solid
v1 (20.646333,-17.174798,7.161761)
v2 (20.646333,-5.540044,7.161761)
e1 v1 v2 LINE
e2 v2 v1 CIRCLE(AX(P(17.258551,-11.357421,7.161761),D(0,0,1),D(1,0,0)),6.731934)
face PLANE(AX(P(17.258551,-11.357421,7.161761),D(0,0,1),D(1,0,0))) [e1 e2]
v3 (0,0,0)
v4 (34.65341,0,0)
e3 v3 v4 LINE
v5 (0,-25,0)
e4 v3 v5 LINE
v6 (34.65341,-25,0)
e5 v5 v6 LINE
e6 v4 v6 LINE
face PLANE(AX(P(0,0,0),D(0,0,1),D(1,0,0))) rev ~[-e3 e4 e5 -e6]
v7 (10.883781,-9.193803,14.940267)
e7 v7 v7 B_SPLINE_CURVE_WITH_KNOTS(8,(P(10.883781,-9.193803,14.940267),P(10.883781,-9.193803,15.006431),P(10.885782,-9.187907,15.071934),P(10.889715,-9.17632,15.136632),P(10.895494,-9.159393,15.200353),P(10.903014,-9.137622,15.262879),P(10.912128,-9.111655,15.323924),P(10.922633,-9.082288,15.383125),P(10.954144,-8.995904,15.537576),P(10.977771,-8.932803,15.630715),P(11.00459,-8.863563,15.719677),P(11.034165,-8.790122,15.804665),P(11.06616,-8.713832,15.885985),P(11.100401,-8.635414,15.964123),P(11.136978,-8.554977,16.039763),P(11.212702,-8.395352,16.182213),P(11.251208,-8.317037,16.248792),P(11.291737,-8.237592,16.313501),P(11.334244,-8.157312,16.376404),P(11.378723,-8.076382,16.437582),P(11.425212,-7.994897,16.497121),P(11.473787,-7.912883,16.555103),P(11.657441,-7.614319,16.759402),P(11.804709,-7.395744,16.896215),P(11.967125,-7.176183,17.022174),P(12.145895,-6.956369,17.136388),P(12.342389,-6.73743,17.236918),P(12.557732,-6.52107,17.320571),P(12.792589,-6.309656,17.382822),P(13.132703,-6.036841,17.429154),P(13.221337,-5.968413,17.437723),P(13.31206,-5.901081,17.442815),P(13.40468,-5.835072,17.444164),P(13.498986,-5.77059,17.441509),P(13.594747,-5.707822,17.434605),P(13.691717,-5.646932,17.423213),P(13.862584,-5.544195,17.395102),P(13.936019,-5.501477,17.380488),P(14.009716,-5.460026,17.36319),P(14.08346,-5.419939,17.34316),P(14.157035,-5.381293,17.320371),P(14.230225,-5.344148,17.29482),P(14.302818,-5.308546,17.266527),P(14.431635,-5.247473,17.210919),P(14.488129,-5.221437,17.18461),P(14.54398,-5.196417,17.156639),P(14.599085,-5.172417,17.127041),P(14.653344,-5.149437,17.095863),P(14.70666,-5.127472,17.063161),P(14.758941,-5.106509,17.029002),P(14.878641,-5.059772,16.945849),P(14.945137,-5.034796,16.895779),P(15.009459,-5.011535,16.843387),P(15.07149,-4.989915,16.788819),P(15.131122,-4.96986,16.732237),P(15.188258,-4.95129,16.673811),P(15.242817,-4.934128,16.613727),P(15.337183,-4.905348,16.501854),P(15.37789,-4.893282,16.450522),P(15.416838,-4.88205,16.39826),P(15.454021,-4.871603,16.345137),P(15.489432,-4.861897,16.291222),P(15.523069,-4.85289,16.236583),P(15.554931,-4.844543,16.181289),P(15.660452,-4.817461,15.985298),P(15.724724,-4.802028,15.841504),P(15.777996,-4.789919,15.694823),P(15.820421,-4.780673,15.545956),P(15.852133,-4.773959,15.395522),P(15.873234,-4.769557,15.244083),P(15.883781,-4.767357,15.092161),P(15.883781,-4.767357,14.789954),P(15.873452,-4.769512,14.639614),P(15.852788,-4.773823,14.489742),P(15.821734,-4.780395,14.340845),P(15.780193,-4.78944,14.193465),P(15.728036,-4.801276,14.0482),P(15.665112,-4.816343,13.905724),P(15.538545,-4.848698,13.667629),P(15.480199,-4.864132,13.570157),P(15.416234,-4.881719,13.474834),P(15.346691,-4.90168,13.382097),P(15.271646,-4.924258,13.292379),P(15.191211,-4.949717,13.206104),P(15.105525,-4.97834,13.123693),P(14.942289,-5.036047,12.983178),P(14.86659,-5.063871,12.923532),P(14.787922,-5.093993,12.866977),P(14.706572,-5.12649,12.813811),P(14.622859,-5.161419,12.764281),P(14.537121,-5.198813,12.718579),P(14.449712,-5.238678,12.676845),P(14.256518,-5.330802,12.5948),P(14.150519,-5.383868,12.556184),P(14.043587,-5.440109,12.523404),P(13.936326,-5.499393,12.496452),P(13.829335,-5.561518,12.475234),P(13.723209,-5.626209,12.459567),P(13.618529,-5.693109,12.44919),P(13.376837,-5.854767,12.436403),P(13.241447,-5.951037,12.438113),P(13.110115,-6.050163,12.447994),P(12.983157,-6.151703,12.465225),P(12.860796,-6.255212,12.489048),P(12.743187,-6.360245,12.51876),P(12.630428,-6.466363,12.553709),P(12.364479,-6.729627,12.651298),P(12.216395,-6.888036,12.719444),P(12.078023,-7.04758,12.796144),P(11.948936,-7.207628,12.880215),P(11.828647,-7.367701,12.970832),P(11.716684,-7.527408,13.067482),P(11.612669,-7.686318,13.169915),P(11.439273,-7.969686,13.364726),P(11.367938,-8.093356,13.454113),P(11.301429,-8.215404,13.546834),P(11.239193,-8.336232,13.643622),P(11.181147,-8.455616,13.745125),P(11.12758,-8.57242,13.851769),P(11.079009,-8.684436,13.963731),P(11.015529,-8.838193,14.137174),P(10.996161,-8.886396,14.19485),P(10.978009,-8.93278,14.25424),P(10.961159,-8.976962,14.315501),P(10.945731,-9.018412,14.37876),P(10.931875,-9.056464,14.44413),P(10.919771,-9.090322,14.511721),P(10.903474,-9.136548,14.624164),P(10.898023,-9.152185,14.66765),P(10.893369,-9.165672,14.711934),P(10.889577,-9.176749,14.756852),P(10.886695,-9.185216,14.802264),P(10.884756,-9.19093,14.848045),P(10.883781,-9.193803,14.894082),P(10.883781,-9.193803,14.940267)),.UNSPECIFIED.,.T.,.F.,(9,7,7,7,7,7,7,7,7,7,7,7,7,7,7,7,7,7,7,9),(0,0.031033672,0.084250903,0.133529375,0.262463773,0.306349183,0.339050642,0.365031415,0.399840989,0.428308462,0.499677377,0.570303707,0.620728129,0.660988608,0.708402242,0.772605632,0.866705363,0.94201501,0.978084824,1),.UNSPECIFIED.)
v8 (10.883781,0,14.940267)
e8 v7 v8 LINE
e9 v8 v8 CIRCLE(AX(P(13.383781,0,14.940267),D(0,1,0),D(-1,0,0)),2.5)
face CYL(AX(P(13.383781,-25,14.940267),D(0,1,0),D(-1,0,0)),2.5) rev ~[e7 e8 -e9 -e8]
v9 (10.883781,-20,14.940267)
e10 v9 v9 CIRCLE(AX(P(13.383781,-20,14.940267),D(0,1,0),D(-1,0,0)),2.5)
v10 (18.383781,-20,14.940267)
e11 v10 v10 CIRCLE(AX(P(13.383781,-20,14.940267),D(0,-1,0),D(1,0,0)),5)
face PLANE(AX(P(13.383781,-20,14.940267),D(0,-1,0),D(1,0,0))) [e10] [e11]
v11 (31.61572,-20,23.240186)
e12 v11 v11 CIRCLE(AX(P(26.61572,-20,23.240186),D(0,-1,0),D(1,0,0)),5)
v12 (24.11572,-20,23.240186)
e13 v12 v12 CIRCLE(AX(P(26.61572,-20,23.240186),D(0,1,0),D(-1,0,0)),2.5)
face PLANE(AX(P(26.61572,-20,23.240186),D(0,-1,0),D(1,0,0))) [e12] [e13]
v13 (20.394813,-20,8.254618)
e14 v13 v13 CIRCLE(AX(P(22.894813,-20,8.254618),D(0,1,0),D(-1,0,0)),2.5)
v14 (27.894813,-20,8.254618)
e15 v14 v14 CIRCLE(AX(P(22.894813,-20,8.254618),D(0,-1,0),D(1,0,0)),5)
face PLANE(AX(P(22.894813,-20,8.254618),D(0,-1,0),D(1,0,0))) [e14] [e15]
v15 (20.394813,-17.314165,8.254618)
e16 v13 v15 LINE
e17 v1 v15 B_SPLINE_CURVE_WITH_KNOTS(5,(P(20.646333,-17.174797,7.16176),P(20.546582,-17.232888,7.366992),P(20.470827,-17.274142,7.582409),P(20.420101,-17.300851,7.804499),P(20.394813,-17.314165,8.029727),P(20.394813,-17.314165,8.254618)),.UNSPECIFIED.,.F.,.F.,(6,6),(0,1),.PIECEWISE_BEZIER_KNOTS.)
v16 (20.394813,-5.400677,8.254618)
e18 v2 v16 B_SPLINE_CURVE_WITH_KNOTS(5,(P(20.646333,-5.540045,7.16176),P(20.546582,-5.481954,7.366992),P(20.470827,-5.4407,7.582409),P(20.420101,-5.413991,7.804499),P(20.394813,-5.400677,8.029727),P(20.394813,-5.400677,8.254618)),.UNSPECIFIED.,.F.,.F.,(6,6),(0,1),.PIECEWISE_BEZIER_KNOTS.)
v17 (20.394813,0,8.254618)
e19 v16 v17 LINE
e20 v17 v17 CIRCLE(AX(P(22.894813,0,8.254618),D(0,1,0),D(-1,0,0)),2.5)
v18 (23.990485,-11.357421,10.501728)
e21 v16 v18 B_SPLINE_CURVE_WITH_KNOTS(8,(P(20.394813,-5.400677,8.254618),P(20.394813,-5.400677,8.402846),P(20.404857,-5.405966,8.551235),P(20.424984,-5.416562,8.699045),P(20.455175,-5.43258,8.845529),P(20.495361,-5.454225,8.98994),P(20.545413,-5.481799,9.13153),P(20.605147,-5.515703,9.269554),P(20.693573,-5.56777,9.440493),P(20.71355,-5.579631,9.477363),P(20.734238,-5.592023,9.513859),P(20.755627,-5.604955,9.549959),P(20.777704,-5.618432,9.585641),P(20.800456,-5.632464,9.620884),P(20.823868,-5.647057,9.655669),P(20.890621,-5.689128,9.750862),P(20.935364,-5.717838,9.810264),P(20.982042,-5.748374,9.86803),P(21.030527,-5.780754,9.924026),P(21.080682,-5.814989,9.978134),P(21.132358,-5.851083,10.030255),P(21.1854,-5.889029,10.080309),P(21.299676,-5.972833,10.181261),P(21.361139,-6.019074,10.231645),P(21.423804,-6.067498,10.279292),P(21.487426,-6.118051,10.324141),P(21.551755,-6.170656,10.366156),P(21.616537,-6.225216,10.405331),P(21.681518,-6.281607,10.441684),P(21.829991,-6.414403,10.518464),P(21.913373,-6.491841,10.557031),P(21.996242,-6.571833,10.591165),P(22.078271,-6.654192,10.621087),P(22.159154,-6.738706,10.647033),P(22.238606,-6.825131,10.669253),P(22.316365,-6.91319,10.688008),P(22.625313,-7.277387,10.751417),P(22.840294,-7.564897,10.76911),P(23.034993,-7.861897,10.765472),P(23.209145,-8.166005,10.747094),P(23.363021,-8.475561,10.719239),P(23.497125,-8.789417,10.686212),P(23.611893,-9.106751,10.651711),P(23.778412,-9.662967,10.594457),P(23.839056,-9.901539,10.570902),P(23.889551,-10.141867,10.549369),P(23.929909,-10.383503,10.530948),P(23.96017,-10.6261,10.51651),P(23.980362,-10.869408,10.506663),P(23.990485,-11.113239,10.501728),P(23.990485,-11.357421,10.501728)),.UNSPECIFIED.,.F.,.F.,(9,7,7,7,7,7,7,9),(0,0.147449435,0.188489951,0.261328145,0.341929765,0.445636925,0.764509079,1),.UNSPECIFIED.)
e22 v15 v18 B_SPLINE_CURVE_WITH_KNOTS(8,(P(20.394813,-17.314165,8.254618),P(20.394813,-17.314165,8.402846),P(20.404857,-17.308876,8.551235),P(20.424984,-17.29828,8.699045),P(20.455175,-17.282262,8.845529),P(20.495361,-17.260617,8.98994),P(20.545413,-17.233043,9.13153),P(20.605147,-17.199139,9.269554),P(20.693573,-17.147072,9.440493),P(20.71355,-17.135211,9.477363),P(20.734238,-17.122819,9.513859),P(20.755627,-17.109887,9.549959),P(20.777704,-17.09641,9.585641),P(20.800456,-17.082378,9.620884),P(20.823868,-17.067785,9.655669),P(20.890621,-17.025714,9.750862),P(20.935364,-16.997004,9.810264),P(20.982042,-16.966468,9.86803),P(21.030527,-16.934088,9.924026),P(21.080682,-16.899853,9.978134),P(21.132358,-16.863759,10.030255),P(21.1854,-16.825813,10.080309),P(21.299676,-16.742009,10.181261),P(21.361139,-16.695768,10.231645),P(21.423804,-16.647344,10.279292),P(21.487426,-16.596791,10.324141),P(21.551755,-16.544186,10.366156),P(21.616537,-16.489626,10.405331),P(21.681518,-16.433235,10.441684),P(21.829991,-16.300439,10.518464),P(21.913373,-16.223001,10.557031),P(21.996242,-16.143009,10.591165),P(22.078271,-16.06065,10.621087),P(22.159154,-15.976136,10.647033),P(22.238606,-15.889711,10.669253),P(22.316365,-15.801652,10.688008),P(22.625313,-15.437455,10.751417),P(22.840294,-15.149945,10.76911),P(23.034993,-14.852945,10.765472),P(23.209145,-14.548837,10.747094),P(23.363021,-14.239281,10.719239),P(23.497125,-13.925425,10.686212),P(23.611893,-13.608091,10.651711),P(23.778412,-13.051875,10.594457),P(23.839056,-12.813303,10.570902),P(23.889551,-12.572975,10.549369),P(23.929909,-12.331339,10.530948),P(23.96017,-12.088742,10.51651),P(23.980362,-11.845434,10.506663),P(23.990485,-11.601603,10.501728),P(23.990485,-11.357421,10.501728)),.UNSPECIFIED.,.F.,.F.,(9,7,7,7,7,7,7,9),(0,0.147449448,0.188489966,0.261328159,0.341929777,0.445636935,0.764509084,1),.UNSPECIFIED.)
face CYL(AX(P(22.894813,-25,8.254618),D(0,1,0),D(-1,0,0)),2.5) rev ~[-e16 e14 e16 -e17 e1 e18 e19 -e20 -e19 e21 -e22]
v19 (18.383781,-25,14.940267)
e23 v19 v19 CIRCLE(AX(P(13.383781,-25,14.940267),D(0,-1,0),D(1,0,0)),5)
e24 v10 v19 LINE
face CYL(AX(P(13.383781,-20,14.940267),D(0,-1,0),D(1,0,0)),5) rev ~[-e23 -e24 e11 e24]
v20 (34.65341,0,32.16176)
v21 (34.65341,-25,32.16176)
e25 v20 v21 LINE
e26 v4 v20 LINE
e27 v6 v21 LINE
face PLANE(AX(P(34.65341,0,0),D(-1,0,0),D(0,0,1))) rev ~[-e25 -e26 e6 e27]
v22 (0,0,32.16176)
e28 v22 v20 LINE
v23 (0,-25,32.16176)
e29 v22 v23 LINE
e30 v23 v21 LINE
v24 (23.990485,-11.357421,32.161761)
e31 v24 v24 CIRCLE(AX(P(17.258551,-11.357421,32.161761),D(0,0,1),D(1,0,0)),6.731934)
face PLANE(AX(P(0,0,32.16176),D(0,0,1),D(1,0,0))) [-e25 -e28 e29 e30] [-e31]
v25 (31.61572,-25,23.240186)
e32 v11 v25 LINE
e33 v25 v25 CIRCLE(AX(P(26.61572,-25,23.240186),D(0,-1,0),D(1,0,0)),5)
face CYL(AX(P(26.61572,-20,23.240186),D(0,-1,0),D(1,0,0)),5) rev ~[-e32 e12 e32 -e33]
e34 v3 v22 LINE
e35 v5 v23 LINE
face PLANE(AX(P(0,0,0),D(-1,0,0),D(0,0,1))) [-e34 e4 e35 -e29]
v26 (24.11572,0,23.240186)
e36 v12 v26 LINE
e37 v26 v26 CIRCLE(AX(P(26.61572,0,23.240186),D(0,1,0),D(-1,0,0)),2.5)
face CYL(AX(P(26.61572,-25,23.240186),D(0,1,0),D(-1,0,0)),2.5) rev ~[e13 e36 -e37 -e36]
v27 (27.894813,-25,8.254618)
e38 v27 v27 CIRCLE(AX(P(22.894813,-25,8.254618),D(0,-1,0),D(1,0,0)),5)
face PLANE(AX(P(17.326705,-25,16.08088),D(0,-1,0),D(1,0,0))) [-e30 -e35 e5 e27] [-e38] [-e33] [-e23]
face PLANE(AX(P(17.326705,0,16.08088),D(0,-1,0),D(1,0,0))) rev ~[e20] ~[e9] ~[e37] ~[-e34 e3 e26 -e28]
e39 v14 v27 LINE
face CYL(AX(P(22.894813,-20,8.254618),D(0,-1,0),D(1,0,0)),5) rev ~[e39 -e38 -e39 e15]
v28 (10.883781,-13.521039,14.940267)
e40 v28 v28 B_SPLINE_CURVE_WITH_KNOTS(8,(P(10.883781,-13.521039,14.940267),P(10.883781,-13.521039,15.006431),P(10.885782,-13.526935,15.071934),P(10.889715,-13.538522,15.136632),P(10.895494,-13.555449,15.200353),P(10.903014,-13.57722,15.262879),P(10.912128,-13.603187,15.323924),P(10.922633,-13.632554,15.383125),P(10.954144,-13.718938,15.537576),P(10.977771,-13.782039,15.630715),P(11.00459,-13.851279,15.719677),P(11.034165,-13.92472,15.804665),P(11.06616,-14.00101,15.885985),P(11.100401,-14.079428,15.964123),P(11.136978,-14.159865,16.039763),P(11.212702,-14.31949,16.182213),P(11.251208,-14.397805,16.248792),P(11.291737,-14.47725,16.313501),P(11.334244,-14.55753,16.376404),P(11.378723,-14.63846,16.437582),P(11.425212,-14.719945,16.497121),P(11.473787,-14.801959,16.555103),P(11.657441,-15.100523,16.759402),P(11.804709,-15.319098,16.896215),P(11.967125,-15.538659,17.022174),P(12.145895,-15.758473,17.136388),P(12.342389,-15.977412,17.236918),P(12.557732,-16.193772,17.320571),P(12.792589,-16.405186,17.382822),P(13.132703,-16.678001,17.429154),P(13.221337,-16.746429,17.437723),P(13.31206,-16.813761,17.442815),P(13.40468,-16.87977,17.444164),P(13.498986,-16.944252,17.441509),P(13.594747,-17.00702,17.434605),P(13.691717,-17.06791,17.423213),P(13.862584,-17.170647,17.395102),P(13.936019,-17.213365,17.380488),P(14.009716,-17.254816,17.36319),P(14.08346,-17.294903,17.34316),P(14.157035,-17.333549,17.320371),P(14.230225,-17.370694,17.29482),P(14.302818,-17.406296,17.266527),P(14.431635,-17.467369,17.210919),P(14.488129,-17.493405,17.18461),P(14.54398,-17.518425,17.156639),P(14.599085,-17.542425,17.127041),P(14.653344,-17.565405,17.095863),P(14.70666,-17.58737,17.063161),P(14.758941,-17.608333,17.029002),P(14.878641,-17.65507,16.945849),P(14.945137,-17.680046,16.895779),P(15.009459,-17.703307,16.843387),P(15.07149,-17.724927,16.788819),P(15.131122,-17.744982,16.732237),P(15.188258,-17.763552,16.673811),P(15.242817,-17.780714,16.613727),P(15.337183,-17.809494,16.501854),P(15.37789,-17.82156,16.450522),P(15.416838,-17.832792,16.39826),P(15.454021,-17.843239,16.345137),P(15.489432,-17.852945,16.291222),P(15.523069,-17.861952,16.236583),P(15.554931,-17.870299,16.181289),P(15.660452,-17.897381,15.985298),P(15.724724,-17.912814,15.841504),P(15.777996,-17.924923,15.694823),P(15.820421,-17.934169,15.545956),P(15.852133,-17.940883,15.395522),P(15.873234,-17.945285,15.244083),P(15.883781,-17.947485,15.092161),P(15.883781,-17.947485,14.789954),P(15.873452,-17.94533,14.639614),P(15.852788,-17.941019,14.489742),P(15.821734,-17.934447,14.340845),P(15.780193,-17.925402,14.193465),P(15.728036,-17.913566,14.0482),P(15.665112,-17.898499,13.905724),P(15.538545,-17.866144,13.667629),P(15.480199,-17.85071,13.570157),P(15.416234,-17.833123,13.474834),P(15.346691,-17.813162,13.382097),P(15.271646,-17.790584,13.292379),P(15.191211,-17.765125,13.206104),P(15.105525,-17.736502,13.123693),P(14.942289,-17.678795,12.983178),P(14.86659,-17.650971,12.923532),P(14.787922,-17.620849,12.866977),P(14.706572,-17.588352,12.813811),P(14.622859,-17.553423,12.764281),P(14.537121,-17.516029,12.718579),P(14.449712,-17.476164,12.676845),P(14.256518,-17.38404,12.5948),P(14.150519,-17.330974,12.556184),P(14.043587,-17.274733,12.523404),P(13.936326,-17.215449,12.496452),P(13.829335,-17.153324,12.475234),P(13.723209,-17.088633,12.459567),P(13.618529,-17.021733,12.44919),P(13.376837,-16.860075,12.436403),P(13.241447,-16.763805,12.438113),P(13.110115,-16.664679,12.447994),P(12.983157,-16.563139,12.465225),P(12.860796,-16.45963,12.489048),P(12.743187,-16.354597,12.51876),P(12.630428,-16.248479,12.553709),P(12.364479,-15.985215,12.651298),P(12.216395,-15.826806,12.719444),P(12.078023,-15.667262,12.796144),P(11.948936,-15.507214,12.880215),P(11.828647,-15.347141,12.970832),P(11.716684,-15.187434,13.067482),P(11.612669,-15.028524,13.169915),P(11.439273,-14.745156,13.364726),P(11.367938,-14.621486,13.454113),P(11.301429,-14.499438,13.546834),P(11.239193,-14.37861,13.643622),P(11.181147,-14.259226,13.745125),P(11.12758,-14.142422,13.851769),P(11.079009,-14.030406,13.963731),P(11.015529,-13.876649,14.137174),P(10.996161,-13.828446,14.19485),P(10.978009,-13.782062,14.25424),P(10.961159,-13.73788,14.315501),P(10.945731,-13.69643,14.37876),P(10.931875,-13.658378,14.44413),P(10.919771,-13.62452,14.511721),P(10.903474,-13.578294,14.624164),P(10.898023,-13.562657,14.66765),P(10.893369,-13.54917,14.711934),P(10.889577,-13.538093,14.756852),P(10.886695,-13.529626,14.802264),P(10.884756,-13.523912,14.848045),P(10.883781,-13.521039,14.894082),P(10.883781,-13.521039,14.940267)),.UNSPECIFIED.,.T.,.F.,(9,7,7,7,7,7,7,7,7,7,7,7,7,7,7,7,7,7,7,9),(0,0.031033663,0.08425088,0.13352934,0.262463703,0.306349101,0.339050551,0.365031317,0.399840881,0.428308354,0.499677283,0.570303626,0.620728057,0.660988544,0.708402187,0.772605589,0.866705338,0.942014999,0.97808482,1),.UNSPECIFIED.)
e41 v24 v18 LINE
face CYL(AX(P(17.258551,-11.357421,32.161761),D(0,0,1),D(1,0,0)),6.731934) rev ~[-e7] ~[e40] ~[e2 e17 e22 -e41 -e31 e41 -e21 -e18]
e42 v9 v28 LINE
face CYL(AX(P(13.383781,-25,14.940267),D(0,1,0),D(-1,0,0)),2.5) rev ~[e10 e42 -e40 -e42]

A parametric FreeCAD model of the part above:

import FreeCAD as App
import Part
import Sketcher

V = App.Vector


def add_polygon(sketch, points):
    """Adds a closed chain of lines whose ends are joined by coincident constraints."""
    first, n = sketch.GeometryCount, len(points)
    for a, b in zip(points, points[1:] + points[:1]):
        sketch.addGeometry(Part.LineSegment(App.Vector(*a, 0), App.Vector(*b, 0)), False)
    for i in range(n):
        sketch.addConstraint(Sketcher.Constraint("Coincident", first + i, 2, first + (i + 1) % n, 1))

doc = App.newDocument("Part")
body = doc.addObject("PartDesign::Body", "Body")

sketch1 = body.newObject("Sketcher::SketchObject", "Sketch")
sketch1.AttachmentSupport = (doc.getObject("XZ_Plane"), [""])
sketch1.MapMode = "FlatFace"
add_polygon(sketch1, [(0, 32.16176), (0, 0), (34.65341, 0), (34.65341, 32.16176)])
sketch1.addConstraint([
    Sketcher.Constraint("Vertical", 0),
    Sketcher.Constraint("Horizontal", 1),
    Sketcher.Constraint("Vertical", 2),
    Sketcher.Constraint("Horizontal", 3),
    Sketcher.Constraint("Coincident", 0, 2, -1, 1),
    Sketcher.Constraint("DistanceX", 1, 1, 1, 2, 34.65341),
    Sketcher.Constraint("DistanceY", 0, 2, 0, 1, 32.161761),
])
pad1 = body.newObject("PartDesign::Pad", "Pad")
pad1.Profile = sketch1
pad1.Length = 25

sketch2 = body.newObject("Sketcher::SketchObject", "Sketch001")
sketch2.AttachmentSupport = (doc.getObject("XY_Plane"), [""])
sketch2.MapMode = "FlatFace"
sketch2.AttachmentOffset = App.Placement(V(0, 0, 32.161761), App.Rotation())
sketch2.addGeometry(Part.Circle(V(17.258551, -11.357421, 0), V(0, 0, 1), 6.731934), False)
sketch2.addConstraint([
    Sketcher.Constraint("Diameter", 0, 13.463868),
    Sketcher.Constraint("DistanceX", -1, 1, 0, 3, 17.258551),
    Sketcher.Constraint("DistanceY", 0, 3, -1, 1, 11.357421),
])
pocket1 = body.newObject("PartDesign::Pocket", "Pocket")
pocket1.Profile = sketch2
pocket1.Length = 25

sketch3 = body.newObject("Sketcher::SketchObject", "Sketch002")
sketch3.AttachmentSupport = (doc.getObject("XZ_Plane"), [""])
sketch3.MapMode = "FlatFace"
sketch3.AttachmentOffset = App.Placement(V(0, 0, 25), App.Rotation())
sketch3.addGeometry([
    Part.Circle(V(13.383781, 14.940267, 0), V(0, 0, 1), 2.5),
    Part.Circle(V(26.61572, 23.240186, 0), V(0, 0, 1), 2.5),
    Part.Circle(V(22.894813, 8.254618, 0), V(0, 0, 1), 2.5),
], False)
sketch3.addConstraint([
    Sketcher.Constraint("Equal", 0, 1),
    Sketcher.Constraint("Equal", 1, 2),
    Sketcher.Constraint("Diameter", 0, 5.0),
    Sketcher.Constraint("DistanceX", -1, 1, 0, 3, 13.383781),
    Sketcher.Constraint("DistanceX", -1, 1, 1, 3, 26.61572),
    Sketcher.Constraint("DistanceY", -1, 1, 2, 3, 8.254618),
    Sketcher.Constraint("DistanceY", 0, 3, 1, 3, 8.299919),
    Sketcher.Constraint("DistanceX", 0, 3, 2, 3, 9.511032),
    Sketcher.Constraint("DistanceY", 2, 3, 0, 3, 6.685649),
])
doc.recompute()
hole = body.newObject("PartDesign::Hole", "Hole")
hole.Profile = sketch3
hole.ThreadType = "None"
hole.Diameter = 5
hole.DepthType = "ThroughAll"
hole.HoleCutType = "Counterbore"
hole.HoleCutDiameter = 10
hole.HoleCutDepth = 5

doc.recompute()
